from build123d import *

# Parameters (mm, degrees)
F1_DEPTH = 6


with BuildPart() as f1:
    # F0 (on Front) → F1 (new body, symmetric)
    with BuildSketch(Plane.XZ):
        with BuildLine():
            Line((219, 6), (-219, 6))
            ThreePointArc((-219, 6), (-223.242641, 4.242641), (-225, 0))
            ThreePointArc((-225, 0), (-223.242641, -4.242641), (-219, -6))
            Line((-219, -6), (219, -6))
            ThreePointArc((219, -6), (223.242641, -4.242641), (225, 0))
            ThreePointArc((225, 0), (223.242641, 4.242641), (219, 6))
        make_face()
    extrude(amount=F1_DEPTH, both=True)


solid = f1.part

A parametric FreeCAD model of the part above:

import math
import FreeCAD as App
import Part
import Sketcher

V = App.Vector
Q = App.Units.Quantity

doc = App.newDocument("Part")
params = doc.addObject("Spreadsheet::Sheet", "Params")
for row, (alias, value) in enumerate([
    ("sketch1_radius", "5.999999 mm"),
    ("sketch1_width", "438 mm"),
    ("pad1_length", "12 mm"),
], start=1):
    params.set(f"A{row}", alias)
    params.set(f"B{row}", "=" + value)
    params.setAlias(f"B{row}", alias)

body = doc.addObject("PartDesign::Body", "Body")

sketch1 = body.newObject("Sketcher::SketchObject", "Sketch")
sketch1.AttachmentSupport = (doc.getObject("XZ_Plane"), [""])
sketch1.MapMode = "FlatFace"
sketch1.addGeometry([
    Part.LineSegment(V(219, 6, 0), V(-219, 6, 0)),
    Part.ArcOfCircle(Part.Circle(V(-219, 0, 0), V(0, 0, 1), 6), math.radians(90), math.radians(180)),
    Part.ArcOfCircle(Part.Circle(V(-219, 0, 0), V(0, 0, 1), 6), math.radians(180), math.radians(270)),
    Part.LineSegment(V(-219, -6, 0), V(219, -6, 0)),
    Part.ArcOfCircle(Part.Circle(V(219, 0, 0), V(0, 0, 1), 6), math.radians(-90), math.radians(0)),
    Part.ArcOfCircle(Part.Circle(V(219, 0, 0), V(0, 0, 1), 6), math.radians(0), math.radians(90)),
], False)
sketch1.addConstraint([
    Sketcher.Constraint("Tangent", 0, 2, 1, 1),
    Sketcher.Constraint("Tangent", 1, 2, 2, 1),
    Sketcher.Constraint("Tangent", 2, 2, 3, 1),
    Sketcher.Constraint("Tangent", 3, 2, 4, 1),
    Sketcher.Constraint("Tangent", 4, 2, 5, 1),
    Sketcher.Constraint("Tangent", 5, 2, 0, 1),
    Sketcher.Constraint("Horizontal", 0),
    Sketcher.Constraint("Horizontal", 3),
    Sketcher.Constraint("Equal", 1, 2),
    Sketcher.Constraint("Equal", 2, 4),
    Sketcher.Constraint("Symmetric", 1, 3, 4, 3, -1, 1),
    Sketcher.Constraint("PointOnObject", 1, 2, -1),
    Sketcher.Constraint("PointOnObject", 4, 2, -1),
    Sketcher.Constraint("Radius", 1, Q("5.999999 mm")),
    Sketcher.Constraint("DistanceX", 0, 2, 0, 1, Q("438 mm")),
])
sketch1.setExpression("Constraints[13]", "Params.sketch1_radius")
sketch1.setExpression("Constraints[14]", "Params.sketch1_width")
pad1 = body.newObject("PartDesign::Pad", "Pad")
pad1.Profile = sketch1
pad1.setExpression("Length", "Params.pad1_length")
pad1.Midplane = True

doc.recompute()
